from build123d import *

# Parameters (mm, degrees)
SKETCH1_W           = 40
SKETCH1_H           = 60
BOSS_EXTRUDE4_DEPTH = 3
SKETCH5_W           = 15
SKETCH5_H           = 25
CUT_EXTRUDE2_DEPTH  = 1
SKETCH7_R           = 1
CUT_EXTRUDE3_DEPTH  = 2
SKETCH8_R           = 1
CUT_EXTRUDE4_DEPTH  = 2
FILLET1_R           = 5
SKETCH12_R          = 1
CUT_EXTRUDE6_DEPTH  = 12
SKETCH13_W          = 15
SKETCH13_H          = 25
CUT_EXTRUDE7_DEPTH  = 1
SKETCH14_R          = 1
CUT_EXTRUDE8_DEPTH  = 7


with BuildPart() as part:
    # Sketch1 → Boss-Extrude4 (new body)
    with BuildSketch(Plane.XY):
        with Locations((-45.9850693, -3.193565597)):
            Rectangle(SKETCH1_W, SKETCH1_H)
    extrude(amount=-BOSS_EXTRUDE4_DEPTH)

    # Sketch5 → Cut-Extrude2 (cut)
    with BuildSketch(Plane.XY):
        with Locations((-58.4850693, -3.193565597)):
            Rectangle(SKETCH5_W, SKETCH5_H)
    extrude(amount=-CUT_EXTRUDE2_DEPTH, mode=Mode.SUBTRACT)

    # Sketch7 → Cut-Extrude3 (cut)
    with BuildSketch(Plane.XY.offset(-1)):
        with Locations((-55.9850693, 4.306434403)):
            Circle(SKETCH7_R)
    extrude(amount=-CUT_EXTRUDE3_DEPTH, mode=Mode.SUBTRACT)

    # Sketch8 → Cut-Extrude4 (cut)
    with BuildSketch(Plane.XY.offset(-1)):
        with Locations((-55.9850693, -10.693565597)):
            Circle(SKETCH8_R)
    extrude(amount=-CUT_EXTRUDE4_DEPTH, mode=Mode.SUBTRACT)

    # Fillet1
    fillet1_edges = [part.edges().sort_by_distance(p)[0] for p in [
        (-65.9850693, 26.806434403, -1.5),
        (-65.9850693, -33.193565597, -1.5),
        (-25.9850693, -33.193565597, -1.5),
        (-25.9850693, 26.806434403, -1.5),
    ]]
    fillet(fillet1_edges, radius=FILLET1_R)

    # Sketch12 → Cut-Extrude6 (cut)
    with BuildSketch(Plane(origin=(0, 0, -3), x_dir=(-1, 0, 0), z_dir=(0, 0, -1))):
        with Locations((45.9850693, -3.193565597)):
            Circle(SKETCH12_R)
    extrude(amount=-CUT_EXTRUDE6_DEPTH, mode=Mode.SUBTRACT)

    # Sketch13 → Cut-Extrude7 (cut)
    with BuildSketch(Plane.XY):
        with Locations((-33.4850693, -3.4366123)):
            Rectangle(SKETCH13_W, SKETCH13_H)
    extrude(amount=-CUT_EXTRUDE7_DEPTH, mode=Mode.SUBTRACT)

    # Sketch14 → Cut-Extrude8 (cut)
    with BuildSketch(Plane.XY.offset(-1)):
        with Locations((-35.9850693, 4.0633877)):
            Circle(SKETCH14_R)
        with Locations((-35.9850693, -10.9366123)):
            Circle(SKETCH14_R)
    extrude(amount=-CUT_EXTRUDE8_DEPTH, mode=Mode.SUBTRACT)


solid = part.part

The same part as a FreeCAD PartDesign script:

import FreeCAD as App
import Part
import Sketcher


def edges_at(feature, points):
    """Names of the edges that pass closest to the given points."""
    edges = feature.Shape.Edges
    near = lambda p: min(range(len(edges)), key=lambda i: edges[i].distToShape(Part.Vertex(*p))[0])
    return sorted({f"Edge{near(p) + 1}" for p in points})


def add_polygon(sketch, points):
    """Adds a closed chain of lines whose ends are joined by coincident constraints."""
    first, n = sketch.GeometryCount, len(points)
    for a, b in zip(points, points[1:] + points[:1]):
        sketch.addGeometry(Part.LineSegment(App.Vector(*a, 0), App.Vector(*b, 0)), False)
    for i in range(n):
        sketch.addConstraint(Sketcher.Constraint("Coincident", first + i, 2, first + (i + 1) % n, 1))

doc = App.newDocument("Part")
body = doc.addObject("PartDesign::Body", "Body")

sketch1 = body.newObject("Sketcher::SketchObject", "Sketch")
sketch1.AttachmentSupport = (doc.getObject("XY_Plane"), [""])
sketch1.MapMode = "FlatFace"
add_polygon(sketch1, [(-66, 27), (-66, -33), (-26, -33), (-26, 27)])
sketch1.addConstraint(Sketcher.Constraint("Vertical", 0))
sketch1.addConstraint(Sketcher.Constraint("Horizontal", 1))
sketch1.addConstraint(Sketcher.Constraint("Vertical", 2))
sketch1.addConstraint(Sketcher.Constraint("Horizontal", 3))
sketch1.addConstraint(Sketcher.Constraint("DistanceX", 1, 1, 1, 2, 40.0))
sketch1.addConstraint(Sketcher.Constraint("DistanceY", 0, 2, 0, 1, 60.0))
sketch1.addConstraint(Sketcher.Constraint("DistanceX", 0, 2, -1, 1, 65.985069))
sketch1.addConstraint(Sketcher.Constraint("DistanceY", 0, 2, -1, 1, 33.193566))
pad1 = body.newObject("PartDesign::Pad", "Pad")
pad1.Profile = sketch1
pad1.Length = 3
pad1.Reversed = True

sketch2 = body.newObject("Sketcher::SketchObject", "Sketch001")
sketch2.AttachmentSupport = (doc.getObject("XY_Plane"), [""])
sketch2.MapMode = "FlatFace"
add_polygon(sketch2, [(-66, 9), (-66, -16), (-51, -16), (-51, 9)])
sketch2.addConstraint(Sketcher.Constraint("Vertical", 0))
sketch2.addConstraint(Sketcher.Constraint("Horizontal", 1))
sketch2.addConstraint(Sketcher.Constraint("Vertical", 2))
sketch2.addConstraint(Sketcher.Constraint("Horizontal", 3))
sketch2.addConstraint(Sketcher.Constraint("DistanceX", 1, 1, 1, 2, 15.0))
sketch2.addConstraint(Sketcher.Constraint("DistanceY", 0, 2, 0, 1, 25.0))
sketch2.addConstraint(Sketcher.Constraint("DistanceX", 0, 2, -1, 1, 65.985069))
sketch2.addConstraint(Sketcher.Constraint("DistanceY", 0, 2, -1, 1, 15.693566))
pocket1 = body.newObject("PartDesign::Pocket", "Pocket")
pocket1.Profile = sketch2
pocket1.Length = 1

sketch3 = body.newObject("Sketcher::SketchObject", "Sketch002")
sketch3.AttachmentSupport = (doc.getObject("XY_Plane"), [""])
sketch3.MapMode = "FlatFace"
sketch3.AttachmentOffset = App.Placement(App.Vector(0, 0, -1), App.Rotation())
sketch3.addGeometry(Part.Circle(App.Vector(-56, 4.3, 0), App.Vector(0, 0, 1), 1), False)
sketch3.addConstraint(Sketcher.Constraint("Diameter", 0, 2.0))
sketch3.addConstraint(Sketcher.Constraint("DistanceX", 0, 3, -1, 1, 55.985069))
sketch3.addConstraint(Sketcher.Constraint("DistanceY", -1, 1, 0, 3, 4.306434))
pocket2 = body.newObject("PartDesign::Pocket", "Pocket001")
pocket2.Profile = sketch3
pocket2.Length = 2

sketch4 = body.newObject("Sketcher::SketchObject", "Sketch003")
sketch4.AttachmentSupport = (doc.getObject("XY_Plane"), [""])
sketch4.MapMode = "FlatFace"
sketch4.AttachmentOffset = App.Placement(App.Vector(0, 0, -1), App.Rotation())
sketch4.addGeometry(Part.Circle(App.Vector(-56, -10.7, 0), App.Vector(0, 0, 1), 1), False)
sketch4.addConstraint(Sketcher.Constraint("Diameter", 0, 2.0))
sketch4.addConstraint(Sketcher.Constraint("DistanceX", 0, 3, -1, 1, 55.985069))
sketch4.addConstraint(Sketcher.Constraint("DistanceY", 0, 3, -1, 1, 10.693566))
pocket3 = body.newObject("PartDesign::Pocket", "Pocket002")
pocket3.Profile = sketch4
pocket3.Length = 2
doc.recompute()

fillet = body.newObject("PartDesign::Fillet", "Fillet")
fillet.Base = (pocket3, edges_at(pocket3, [
    (-65.985, 26.806, -1.5),
    (-65.985, -33.194, -1.5),
    (-25.985, -33.194, -1.5),
    (-25.985, 26.806, -1.5),
]))
fillet.Radius = 5

sketch5 = body.newObject("Sketcher::SketchObject", "Sketch004")
sketch5.AttachmentSupport = (doc.getObject("XY_Plane"), [""])
sketch5.MapMode = "FlatFace"
sketch5.AttachmentOffset = App.Placement(App.Vector(0, 0, -3), App.Rotation())
sketch5.addGeometry(Part.Circle(App.Vector(-46, -3.2, 0), App.Vector(0, 0, 1), 1), False)
sketch5.addConstraint(Sketcher.Constraint("Diameter", 0, 2.0))
sketch5.addConstraint(Sketcher.Constraint("DistanceX", 0, 3, -1, 1, 45.985069))
sketch5.addConstraint(Sketcher.Constraint("DistanceY", 0, 3, -1, 1, 3.193566))
pocket4 = body.newObject("PartDesign::Pocket", "Pocket003")
pocket4.Profile = sketch5
pocket4.Length = 12
pocket4.Reversed = True

sketch6 = body.newObject("Sketcher::SketchObject", "Sketch005")
sketch6.AttachmentSupport = (doc.getObject("XY_Plane"), [""])
sketch6.MapMode = "FlatFace"
add_polygon(sketch6, [(-41, 9), (-41, -16), (-26, -16), (-26, 9)])
sketch6.addConstraint(Sketcher.Constraint("Vertical", 0))
sketch6.addConstraint(Sketcher.Constraint("Horizontal", 1))
sketch6.addConstraint(Sketcher.Constraint("Vertical", 2))
sketch6.addConstraint(Sketcher.Constraint("Horizontal", 3))
sketch6.addConstraint(Sketcher.Constraint("DistanceX", 1, 1, 1, 2, 15.0))
sketch6.addConstraint(Sketcher.Constraint("DistanceY", 0, 2, 0, 1, 25.0))
sketch6.addConstraint(Sketcher.Constraint("DistanceX", 0, 2, -1, 1, 40.985069))
sketch6.addConstraint(Sketcher.Constraint("DistanceY", 0, 2, -1, 1, 15.936612))
pocket5 = body.newObject("PartDesign::Pocket", "Pocket004")
pocket5.Profile = sketch6
pocket5.Length = 1

sketch7 = body.newObject("Sketcher::SketchObject", "Sketch006")
sketch7.AttachmentSupport = (doc.getObject("XY_Plane"), [""])
sketch7.MapMode = "FlatFace"
sketch7.AttachmentOffset = App.Placement(App.Vector(0, 0, -1), App.Rotation())
sketch7.addGeometry(Part.Circle(App.Vector(-36, 4.1, 0), App.Vector(0, 0, 1), 1), False)
sketch7.addGeometry(Part.Circle(App.Vector(-36, -10.9, 0), App.Vector(0, 0, 1), 1), False)
sketch7.addConstraint(Sketcher.Constraint("Equal", 0, 1))
sketch7.addConstraint(Sketcher.Constraint("Vertical", 0, 3, 1, 3))
sketch7.addConstraint(Sketcher.Constraint("Diameter", 0, 2.0))
sketch7.addConstraint(Sketcher.Constraint("DistanceY", 1, 3, 0, 3, 15.0))
sketch7.addConstraint(Sketcher.Constraint("DistanceX", 0, 3, -1, 1, 35.985069))
sketch7.addConstraint(Sketcher.Constraint("DistanceY", -1, 1, 0, 3, 4.063388))
pocket6 = body.newObject("PartDesign::Pocket", "Pocket005")
pocket6.Profile = sketch7
pocket6.Length = 7

doc.recompute()
